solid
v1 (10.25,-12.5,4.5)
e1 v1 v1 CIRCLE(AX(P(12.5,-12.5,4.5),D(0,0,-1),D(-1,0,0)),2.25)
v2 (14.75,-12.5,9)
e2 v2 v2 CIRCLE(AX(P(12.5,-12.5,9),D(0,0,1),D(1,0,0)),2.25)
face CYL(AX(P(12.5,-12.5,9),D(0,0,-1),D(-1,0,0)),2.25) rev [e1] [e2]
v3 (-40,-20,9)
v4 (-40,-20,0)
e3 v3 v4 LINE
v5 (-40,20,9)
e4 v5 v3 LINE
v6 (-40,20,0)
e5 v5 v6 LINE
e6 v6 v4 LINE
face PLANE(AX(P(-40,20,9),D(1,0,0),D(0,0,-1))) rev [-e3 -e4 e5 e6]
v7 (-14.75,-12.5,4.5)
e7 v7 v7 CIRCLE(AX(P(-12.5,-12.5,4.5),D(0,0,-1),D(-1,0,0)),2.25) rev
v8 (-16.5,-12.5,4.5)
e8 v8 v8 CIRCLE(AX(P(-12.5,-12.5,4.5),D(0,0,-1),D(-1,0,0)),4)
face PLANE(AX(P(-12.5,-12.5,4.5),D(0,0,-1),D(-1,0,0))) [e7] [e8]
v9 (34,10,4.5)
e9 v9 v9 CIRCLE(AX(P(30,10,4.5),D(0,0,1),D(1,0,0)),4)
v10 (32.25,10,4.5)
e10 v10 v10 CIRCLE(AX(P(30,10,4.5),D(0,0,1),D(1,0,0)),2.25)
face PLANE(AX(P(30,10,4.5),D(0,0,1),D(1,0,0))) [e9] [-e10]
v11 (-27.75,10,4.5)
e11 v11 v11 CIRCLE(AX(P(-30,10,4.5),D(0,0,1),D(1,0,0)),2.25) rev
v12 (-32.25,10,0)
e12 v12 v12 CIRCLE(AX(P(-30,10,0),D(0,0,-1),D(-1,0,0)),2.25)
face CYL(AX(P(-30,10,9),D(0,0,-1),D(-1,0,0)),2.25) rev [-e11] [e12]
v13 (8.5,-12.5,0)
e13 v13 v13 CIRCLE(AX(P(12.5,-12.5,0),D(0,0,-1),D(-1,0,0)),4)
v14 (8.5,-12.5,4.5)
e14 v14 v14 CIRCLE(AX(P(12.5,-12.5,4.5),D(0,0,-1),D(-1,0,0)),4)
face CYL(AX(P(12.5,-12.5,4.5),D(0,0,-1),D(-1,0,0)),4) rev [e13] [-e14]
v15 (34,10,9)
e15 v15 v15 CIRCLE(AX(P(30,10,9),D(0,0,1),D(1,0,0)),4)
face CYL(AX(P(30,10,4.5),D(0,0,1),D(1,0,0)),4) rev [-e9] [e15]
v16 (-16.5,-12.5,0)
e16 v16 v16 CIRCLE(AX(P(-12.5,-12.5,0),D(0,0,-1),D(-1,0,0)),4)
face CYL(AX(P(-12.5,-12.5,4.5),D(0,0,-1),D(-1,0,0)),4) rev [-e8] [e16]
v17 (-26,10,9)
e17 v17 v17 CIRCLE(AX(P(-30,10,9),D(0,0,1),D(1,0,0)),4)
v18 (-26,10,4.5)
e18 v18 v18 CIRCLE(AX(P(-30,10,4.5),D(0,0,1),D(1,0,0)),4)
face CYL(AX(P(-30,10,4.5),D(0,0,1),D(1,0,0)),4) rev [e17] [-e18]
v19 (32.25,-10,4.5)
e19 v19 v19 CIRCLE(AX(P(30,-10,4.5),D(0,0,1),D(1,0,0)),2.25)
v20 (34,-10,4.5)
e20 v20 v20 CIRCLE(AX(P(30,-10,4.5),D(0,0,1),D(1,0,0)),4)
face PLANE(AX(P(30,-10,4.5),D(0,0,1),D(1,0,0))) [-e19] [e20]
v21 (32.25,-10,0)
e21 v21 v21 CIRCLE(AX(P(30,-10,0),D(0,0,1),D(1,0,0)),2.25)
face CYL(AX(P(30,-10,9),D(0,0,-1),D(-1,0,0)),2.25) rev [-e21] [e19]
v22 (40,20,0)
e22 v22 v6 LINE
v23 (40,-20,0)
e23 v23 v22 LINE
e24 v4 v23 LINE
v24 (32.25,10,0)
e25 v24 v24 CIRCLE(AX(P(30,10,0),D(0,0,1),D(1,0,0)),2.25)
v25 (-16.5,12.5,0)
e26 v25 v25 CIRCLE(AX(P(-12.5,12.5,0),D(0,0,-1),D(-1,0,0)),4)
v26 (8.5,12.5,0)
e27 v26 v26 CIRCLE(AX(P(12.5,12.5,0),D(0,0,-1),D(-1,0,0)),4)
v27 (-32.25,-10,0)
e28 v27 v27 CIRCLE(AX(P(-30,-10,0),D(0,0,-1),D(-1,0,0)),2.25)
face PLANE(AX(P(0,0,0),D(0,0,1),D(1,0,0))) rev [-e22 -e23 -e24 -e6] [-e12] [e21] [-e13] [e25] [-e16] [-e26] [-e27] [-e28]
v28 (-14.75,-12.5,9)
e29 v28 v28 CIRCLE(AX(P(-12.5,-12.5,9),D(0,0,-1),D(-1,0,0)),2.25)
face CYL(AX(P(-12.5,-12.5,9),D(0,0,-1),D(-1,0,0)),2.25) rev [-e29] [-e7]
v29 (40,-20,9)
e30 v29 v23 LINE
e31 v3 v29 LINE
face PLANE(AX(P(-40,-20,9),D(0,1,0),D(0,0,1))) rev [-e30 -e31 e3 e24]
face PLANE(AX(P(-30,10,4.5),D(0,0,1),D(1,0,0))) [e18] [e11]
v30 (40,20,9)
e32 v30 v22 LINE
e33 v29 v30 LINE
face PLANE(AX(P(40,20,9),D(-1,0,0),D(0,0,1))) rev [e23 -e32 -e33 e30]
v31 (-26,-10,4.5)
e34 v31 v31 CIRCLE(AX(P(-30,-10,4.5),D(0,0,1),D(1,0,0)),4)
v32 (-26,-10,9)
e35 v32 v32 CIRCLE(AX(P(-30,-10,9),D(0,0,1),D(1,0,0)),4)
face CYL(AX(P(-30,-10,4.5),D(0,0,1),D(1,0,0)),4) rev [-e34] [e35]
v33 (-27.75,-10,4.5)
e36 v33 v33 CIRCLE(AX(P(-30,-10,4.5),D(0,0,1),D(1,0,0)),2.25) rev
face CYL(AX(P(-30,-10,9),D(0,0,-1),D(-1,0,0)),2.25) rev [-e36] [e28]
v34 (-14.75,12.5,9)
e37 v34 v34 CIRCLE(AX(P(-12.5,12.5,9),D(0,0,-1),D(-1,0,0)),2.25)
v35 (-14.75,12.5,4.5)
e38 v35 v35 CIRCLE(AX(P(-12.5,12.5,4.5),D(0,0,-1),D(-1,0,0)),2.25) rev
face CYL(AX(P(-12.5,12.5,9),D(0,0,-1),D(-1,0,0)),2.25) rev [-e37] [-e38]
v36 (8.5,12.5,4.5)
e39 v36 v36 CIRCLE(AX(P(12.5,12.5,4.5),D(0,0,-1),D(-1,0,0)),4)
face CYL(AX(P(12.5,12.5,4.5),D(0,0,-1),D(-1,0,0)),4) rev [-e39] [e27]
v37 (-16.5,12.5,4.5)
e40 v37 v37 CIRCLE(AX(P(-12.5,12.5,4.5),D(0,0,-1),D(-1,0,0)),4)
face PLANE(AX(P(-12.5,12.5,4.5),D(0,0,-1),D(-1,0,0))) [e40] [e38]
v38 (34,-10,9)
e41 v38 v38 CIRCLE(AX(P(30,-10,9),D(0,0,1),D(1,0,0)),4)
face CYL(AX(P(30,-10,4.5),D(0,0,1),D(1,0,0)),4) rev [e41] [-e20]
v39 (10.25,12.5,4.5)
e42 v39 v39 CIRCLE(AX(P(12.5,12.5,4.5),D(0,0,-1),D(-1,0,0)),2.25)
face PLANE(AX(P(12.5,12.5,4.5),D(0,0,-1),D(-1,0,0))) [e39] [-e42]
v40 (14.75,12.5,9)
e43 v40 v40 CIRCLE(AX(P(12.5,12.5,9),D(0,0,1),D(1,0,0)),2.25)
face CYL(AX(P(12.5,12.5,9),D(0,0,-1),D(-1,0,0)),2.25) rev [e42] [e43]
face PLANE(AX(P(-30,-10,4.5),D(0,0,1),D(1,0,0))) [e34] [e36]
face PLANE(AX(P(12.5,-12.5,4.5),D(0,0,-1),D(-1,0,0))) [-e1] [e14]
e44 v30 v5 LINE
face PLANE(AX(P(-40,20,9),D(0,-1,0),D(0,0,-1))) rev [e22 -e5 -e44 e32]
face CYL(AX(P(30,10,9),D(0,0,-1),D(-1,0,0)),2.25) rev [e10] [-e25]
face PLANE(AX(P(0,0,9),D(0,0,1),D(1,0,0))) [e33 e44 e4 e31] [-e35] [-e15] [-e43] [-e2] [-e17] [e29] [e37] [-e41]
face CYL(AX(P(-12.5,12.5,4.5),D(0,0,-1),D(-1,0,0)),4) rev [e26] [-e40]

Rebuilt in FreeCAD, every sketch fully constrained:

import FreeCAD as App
import Part
import Sketcher
from FreeCAD import Vector
Q = App.Units.Quantity

doc = App.newDocument("Part")
body = doc.addObject("PartDesign::Body", "Body")

# Sketch on XY plane
sketch1 = body.newObject("Sketcher::SketchObject", "Sketch")
sketch1.AttachmentSupport = (doc.getObject("XY_Plane"), [""])
sketch1.MapMode = "FlatFace"
sketch1.addGeometry([
    Part.LineSegment(Vector(-40, 20, 0), Vector(-40, -20, 0)),
    Part.LineSegment(Vector(-40, -20, 0), Vector(40, -20, 0)),
    Part.LineSegment(Vector(40, -20, 0), Vector(40, 20, 0)),
    Part.LineSegment(Vector(40, 20, 0), Vector(-40, 20, 0)),
], False)
sketch1.addConstraint([
    Sketcher.Constraint("Coincident", 0, 2, 1, 1),
    Sketcher.Constraint("Coincident", 1, 2, 2, 1),
    Sketcher.Constraint("Coincident", 2, 2, 3, 1),
    Sketcher.Constraint("Coincident", 3, 2, 0, 1),
    Sketcher.Constraint("Vertical", 0),
    Sketcher.Constraint("Horizontal", 1),
    Sketcher.Constraint("Vertical", 2),
    Sketcher.Constraint("Horizontal", 3),
    Sketcher.Constraint("Symmetric", 0, 2, 2, 2, -1, 1),
    Sketcher.Constraint("DistanceX", 1, 1, 1, 2, Q("80 mm")),
    Sketcher.Constraint("DistanceY", 0, 2, 0, 1, Q("40 mm")),
])
pad1 = body.newObject("PartDesign::Pad", "Pad")
pad1.Profile = sketch1
pad1.Length = 9

# Sketch on XY plane
sketch2 = body.newObject("Sketcher::SketchObject", "Sketch001")
sketch2.AttachmentSupport = (doc.getObject("XY_Plane"), [""])
sketch2.MapMode = "FlatFace"
sketch2.addGeometry([
    Part.Circle(Vector(-30, 10, 0), Vector(0, 0, 1), 2.2),
    Part.Circle(Vector(-30, -10, 0), Vector(0, 0, 1), 2.2),
], False)
sketch2.addConstraint([
    Sketcher.Constraint("Equal", 0, 1),
    Sketcher.Constraint("Symmetric", 0, 3, 1, 3, -1),
    Sketcher.Constraint("Diameter", 0, Q("4.5 mm")),
    Sketcher.Constraint("DistanceX", 0, 3, -1, 1, Q("30 mm")),
    Sketcher.Constraint("DistanceY", -1, 1, 0, 3, Q("10 mm")),
])
pocket1 = body.newObject("PartDesign::Pocket", "Pocket")
pocket1.Profile = sketch2
pocket1.Type = "ThroughAll"
pocket1.Reversed = True
doc.recompute()

mirrored = body.newObject("PartDesign::Mirrored", "Mirrored")
mirrored.Originals = [pocket1]
mirrored.MirrorPlane = (doc.getObject("YZ_Plane"), [""])
body.Tip = mirrored

# Sketch on XY plane
sketch3 = body.newObject("Sketcher::SketchObject", "Sketch002")
sketch3.AttachmentSupport = (doc.getObject("XY_Plane"), [""])
sketch3.MapMode = "FlatFace"
sketch3.addGeometry([
    Part.Circle(Vector(-12.5, -12.5, 0), Vector(0, 0, 1), 2.2),
    Part.Circle(Vector(-12.5, 12.5, 0), Vector(0, 0, 1), 2.2),
], False)
sketch3.addConstraint([
    Sketcher.Constraint("Equal", 0, 1),
    Sketcher.Constraint("Symmetric", 0, 3, 1, 3, -1),
    Sketcher.Constraint("Diameter", 0, Q("4.5 mm")),
    Sketcher.Constraint("DistanceY", 0, 3, 1, 3, Q("25 mm")),
    Sketcher.Constraint("DistanceX", 0, 3, -1, 1, Q("12.5 mm")),
])
pocket2 = body.newObject("PartDesign::Pocket", "Pocket001")
pocket2.Profile = sketch3
pocket2.Length = 9
pocket2.Reversed = True
doc.recompute()

mirrored2 = body.newObject("PartDesign::Mirrored", "Mirrored001")
mirrored2.Originals = [pocket2]
mirrored2.MirrorPlane = (doc.getObject("YZ_Plane"), [""])
body.Tip = mirrored2

# Sketch on XY plane
sketch4 = body.newObject("Sketcher::SketchObject", "Sketch003")
sketch4.AttachmentSupport = (doc.getObject("XY_Plane"), [""])
sketch4.MapMode = "FlatFace"
sketch4.addGeometry([
    Part.Circle(Vector(-12.5, 12.5, 0), Vector(0, 0, 1), 4),
    Part.Circle(Vector(-12.5, -12.5, 0), Vector(0, 0, 1), 4),
    Part.Circle(Vector(12.5, 12.5, 0), Vector(0, 0, 1), 4),
    Part.Circle(Vector(12.5, -12.5, 0), Vector(0, 0, 1), 4),
], False)
sketch4.addConstraint([
    Sketcher.Constraint("Equal", 0, 1),
    Sketcher.Constraint("Equal", 1, 2),
    Sketcher.Constraint("Equal", 2, 3),
    Sketcher.Constraint("Symmetric", 1, 3, 2, 3, -1, 1),
    Sketcher.Constraint("Symmetric", 0, 3, 3, 3, -1, 1),
    Sketcher.Constraint("Symmetric", 0, 3, 2, 3, -2),
    Sketcher.Constraint("Diameter", 0, Q("8 mm")),
    Sketcher.Constraint("DistanceY", 1, 3, 0, 3, Q("25 mm")),
    Sketcher.Constraint("DistanceX", 0, 3, 2, 3, Q("25 mm")),
])
pocket3 = body.newObject("PartDesign::Pocket", "Pocket002")
pocket3.Profile = sketch4
pocket3.Length = 4.5
pocket3.Reversed = True

# Sketch on XY plane
sketch5 = body.newObject("Sketcher::SketchObject", "Sketch004")
sketch5.AttachmentSupport = (doc.getObject("XY_Plane"), [""])
sketch5.MapMode = "FlatFace"
sketch5.AttachmentOffset = App.Placement(Vector(0, 0, 9), App.Rotation())
sketch5.addGeometry([
    Part.Circle(Vector(-30, -10, 0), Vector(0, 0, 1), 4),
    Part.Circle(Vector(-30, 10, 0), Vector(0, 0, 1), 4),
    Part.Circle(Vector(30, -10, 0), Vector(0, 0, 1), 4),
    Part.Circle(Vector(30, 10, 0), Vector(0, 0, 1), 4),
], False)
sketch5.addConstraint([
    Sketcher.Constraint("Equal", 0, 1),
    Sketcher.Constraint("Equal", 1, 2),
    Sketcher.Constraint("Equal", 2, 3),
    Sketcher.Constraint("Symmetric", 1, 3, 2, 3, -1, 1),
    Sketcher.Constraint("Symmetric", 0, 3, 3, 3, -1, 1),
    Sketcher.Constraint("Symmetric", 0, 3, 2, 3, -2),
    Sketcher.Constraint("Diameter", 0, Q("8 mm")),
    Sketcher.Constraint("DistanceX", 0, 3, -1, 1, Q("30 mm")),
    Sketcher.Constraint("DistanceY", 0, 3, -1, 1, Q("10 mm")),
])
pocket4 = body.newObject("PartDesign::Pocket", "Pocket003")
pocket4.Profile = sketch5
pocket4.Length = 4.5

doc.recompute()
